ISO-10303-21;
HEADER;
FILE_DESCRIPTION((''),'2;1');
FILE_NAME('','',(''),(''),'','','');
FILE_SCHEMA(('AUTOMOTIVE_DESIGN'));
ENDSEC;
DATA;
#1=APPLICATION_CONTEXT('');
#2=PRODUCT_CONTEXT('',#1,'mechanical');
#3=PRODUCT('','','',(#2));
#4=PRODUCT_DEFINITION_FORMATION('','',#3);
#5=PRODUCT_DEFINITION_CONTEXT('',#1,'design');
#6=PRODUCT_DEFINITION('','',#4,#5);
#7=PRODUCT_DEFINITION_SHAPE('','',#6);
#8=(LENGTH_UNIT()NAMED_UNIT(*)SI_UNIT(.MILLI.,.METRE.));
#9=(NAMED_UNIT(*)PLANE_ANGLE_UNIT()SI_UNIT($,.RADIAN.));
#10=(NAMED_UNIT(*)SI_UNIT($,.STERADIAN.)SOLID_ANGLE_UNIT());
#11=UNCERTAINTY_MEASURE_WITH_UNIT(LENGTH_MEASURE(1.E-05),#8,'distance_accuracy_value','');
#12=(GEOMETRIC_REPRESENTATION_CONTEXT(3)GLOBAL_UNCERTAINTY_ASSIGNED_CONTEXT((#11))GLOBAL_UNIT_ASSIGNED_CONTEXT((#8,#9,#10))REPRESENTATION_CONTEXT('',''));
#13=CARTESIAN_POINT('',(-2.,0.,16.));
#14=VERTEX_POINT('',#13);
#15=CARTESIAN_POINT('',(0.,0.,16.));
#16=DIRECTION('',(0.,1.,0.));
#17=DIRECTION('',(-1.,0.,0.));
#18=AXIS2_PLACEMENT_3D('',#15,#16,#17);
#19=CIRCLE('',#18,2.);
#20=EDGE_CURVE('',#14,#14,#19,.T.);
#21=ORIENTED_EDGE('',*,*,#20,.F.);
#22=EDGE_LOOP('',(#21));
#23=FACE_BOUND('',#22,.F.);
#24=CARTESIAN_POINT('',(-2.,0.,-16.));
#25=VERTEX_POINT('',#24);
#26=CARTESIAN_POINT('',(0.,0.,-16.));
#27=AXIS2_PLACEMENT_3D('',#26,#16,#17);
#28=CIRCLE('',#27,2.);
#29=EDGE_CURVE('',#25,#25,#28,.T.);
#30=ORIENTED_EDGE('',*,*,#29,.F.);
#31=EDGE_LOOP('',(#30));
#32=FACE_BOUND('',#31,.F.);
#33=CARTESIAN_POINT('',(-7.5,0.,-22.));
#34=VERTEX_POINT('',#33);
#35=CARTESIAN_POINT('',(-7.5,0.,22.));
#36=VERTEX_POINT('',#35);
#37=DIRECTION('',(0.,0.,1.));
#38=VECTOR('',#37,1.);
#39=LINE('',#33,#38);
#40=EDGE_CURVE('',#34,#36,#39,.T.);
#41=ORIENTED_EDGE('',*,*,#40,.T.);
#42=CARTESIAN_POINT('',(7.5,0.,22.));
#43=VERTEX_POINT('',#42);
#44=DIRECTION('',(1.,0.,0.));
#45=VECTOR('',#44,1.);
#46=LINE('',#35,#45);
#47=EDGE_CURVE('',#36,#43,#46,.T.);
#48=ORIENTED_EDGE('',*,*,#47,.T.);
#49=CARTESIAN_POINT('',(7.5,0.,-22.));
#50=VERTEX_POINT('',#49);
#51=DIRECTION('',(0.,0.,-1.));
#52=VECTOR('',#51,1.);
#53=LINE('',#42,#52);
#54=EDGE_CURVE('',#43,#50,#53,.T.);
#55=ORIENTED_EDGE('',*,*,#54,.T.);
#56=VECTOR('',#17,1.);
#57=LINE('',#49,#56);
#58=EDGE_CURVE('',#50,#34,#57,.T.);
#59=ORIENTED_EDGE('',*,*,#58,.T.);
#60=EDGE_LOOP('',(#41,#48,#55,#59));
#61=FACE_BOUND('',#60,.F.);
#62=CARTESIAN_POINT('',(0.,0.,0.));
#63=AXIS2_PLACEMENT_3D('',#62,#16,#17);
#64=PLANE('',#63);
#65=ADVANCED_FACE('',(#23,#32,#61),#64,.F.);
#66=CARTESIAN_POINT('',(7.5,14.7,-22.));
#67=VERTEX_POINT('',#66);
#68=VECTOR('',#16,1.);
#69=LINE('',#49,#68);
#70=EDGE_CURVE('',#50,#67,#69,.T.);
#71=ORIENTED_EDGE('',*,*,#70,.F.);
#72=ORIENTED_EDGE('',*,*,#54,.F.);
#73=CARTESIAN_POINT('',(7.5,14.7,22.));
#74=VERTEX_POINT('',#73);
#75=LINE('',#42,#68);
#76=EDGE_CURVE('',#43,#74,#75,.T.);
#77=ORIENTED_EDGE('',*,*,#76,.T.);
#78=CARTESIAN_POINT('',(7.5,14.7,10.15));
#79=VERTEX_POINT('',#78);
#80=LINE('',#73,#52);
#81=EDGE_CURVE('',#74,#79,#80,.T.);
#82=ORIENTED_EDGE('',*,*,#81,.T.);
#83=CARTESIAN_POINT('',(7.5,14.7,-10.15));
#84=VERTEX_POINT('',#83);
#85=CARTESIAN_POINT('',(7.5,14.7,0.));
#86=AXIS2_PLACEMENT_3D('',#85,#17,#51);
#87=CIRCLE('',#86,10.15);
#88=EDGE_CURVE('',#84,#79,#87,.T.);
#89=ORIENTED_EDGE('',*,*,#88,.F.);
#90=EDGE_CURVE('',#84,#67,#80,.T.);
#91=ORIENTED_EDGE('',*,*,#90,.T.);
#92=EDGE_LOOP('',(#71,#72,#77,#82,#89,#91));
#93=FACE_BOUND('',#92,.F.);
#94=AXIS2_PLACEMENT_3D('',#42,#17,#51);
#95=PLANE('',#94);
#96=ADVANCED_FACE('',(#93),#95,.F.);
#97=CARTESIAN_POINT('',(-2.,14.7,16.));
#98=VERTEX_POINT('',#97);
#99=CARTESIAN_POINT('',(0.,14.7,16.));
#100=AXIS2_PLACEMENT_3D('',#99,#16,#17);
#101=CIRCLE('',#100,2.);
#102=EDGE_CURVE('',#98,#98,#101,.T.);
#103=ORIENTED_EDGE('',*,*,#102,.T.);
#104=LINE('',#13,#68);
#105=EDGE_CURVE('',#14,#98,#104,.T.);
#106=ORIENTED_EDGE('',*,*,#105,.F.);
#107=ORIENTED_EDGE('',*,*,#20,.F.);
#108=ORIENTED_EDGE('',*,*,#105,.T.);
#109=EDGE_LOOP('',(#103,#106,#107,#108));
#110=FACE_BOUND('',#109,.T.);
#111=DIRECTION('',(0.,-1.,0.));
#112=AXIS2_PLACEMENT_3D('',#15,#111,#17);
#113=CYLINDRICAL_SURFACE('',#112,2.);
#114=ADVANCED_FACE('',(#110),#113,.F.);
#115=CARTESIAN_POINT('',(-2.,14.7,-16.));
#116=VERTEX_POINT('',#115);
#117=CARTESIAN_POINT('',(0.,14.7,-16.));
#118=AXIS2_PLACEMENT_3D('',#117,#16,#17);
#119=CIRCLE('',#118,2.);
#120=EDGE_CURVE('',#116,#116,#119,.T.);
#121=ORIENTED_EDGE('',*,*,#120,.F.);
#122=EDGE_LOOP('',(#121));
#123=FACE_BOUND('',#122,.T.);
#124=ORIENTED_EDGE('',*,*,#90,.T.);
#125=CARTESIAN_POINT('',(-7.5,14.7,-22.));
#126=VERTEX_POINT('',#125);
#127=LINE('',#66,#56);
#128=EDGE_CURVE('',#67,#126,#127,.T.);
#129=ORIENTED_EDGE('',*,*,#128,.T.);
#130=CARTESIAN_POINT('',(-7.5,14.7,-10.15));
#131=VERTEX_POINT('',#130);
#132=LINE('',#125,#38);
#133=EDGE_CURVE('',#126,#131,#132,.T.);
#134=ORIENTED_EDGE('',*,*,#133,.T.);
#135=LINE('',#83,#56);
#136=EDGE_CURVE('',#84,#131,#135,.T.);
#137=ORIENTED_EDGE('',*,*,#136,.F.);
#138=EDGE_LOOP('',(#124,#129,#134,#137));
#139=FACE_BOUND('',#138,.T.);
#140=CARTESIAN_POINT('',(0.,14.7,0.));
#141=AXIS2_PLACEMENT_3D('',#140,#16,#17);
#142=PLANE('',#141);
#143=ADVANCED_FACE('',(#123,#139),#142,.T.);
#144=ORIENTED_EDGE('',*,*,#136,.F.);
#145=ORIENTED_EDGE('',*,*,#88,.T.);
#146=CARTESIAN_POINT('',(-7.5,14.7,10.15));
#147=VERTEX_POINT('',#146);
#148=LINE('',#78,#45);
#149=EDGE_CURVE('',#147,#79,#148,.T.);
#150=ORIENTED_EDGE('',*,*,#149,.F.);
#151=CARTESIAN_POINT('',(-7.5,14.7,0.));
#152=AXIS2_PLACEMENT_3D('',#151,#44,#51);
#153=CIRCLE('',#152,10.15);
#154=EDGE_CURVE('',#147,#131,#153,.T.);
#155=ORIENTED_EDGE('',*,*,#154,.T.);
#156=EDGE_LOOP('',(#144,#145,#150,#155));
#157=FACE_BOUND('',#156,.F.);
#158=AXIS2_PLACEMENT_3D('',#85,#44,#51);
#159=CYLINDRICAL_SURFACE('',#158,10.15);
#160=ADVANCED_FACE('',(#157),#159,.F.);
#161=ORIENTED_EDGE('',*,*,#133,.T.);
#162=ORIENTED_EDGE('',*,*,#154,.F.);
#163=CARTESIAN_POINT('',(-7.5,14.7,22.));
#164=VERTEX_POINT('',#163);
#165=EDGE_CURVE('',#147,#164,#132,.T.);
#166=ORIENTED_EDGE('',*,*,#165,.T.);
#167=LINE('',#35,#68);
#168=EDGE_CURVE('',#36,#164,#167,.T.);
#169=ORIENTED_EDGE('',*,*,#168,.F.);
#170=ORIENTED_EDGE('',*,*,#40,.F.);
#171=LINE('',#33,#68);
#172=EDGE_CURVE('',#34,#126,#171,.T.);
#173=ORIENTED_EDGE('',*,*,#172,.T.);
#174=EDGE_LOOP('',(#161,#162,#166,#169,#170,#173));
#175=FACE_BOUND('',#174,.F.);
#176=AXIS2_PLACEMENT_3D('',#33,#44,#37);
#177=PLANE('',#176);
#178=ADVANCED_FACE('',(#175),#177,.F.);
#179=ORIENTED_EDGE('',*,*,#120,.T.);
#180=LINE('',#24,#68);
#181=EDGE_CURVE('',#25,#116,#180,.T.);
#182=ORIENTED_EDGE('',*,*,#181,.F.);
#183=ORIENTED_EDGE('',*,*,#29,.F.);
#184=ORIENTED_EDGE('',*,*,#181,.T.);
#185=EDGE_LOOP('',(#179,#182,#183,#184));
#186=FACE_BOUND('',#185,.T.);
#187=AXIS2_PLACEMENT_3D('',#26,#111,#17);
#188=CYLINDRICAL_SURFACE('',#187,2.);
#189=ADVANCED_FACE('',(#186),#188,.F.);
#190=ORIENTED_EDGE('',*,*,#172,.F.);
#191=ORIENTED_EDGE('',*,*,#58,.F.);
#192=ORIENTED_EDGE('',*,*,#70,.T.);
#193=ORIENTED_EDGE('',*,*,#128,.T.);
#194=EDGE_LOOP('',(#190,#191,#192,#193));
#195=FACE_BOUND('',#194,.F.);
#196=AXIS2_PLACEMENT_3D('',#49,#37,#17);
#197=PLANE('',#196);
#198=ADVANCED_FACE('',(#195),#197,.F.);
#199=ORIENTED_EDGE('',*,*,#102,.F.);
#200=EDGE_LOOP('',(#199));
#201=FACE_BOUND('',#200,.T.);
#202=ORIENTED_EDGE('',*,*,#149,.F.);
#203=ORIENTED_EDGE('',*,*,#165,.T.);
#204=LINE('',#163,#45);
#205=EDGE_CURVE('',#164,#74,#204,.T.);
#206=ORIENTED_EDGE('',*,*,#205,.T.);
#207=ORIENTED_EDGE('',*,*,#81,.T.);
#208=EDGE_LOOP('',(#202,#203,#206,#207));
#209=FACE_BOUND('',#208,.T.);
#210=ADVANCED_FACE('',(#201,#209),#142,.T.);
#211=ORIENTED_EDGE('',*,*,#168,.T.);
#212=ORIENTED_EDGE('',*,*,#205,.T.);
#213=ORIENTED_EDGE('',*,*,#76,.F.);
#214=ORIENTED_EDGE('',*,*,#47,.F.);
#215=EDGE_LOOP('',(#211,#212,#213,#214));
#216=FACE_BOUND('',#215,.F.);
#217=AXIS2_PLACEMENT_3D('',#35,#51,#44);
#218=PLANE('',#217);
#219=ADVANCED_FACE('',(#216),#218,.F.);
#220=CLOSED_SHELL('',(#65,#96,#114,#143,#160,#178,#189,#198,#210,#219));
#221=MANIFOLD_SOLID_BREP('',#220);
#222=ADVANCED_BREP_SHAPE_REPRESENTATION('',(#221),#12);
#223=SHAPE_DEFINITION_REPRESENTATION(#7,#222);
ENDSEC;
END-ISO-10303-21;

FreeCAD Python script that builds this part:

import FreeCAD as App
import Part
import Sketcher
Q = App.Units.Quantity

doc = App.newDocument("Part")
params = doc.addObject("Spreadsheet::Sheet", "Params")
for row, (alias, value) in enumerate([
    ("sketch1_diameter", "4 mm"),
    ("sketch1_width", "15 mm"),
    ("sketch1_height", "44 mm"),
    ("pad1_length", "14.7 mm"),
    ("sketch2_diameter", "20.3 mm"),
], start=1):
    params.set(f"A{row}", alias)
    params.set(f"B{row}", "=" + value)
    params.setAlias(f"B{row}", alias)

body = doc.addObject("PartDesign::Body", "Body")

sketch1 = doc.addObject("Sketcher::SketchObject", "Sketch")
body.addObject(sketch1)
sketch1.AttachmentSupport = (doc.XZ_Plane, [""])
sketch1.MapMode = "FlatFace"
sketch1.addGeometry([
    Part.LineSegment(App.Vector(-7.5, -22, 0), App.Vector(-7.5, 22, 0)),
    Part.LineSegment(App.Vector(-7.5, 22, 0), App.Vector(7.5, 22, 0)),
    Part.LineSegment(App.Vector(7.5, 22, 0), App.Vector(7.5, -22, 0)),
    Part.LineSegment(App.Vector(7.5, -22, 0), App.Vector(-7.5, -22, 0)),
    Part.Circle(App.Vector(0, -16, 0), App.Vector(0, 0, 1), 2),
    Part.Circle(App.Vector(0, 16, 0), App.Vector(0, 0, 1), 2),
], False)
sketch1.addConstraint([
    Sketcher.Constraint("Coincident", 0, 2, 1, 1),
    Sketcher.Constraint("Coincident", 1, 2, 2, 1),
    Sketcher.Constraint("Coincident", 2, 2, 3, 1),
    Sketcher.Constraint("Coincident", 3, 2, 0, 1),
    Sketcher.Constraint("Vertical", 0),
    Sketcher.Constraint("Horizontal", 1),
    Sketcher.Constraint("Vertical", 2),
    Sketcher.Constraint("Horizontal", 3),
    Sketcher.Constraint("Equal", 4, 5),
    Sketcher.Constraint("Symmetric", 4, 3, 5, 3, -1, 1),
    Sketcher.Constraint("Symmetric", 0, 2, 2, 2, -1, 1),
    Sketcher.Constraint("PointOnObject", 4, 3, -2),
    Sketcher.Constraint("Diameter", 4, Q("4 mm")),
    Sketcher.Constraint("DistanceX", 1, 1, 1, 2, Q("15 mm")),
    Sketcher.Constraint("DistanceY", 0, 1, 0, 2, Q("44 mm")),
    Sketcher.Constraint("DistanceY", 4, 3, -1, 1, Q("16 mm")),
])
sketch1.setExpression("Constraints[12]", "Params.sketch1_diameter")
sketch1.setExpression("Constraints[13]", "Params.sketch1_width")
sketch1.setExpression("Constraints[14]", "Params.sketch1_height")
pad1 = doc.addObject("PartDesign::Pad", "Pad")
body.addObject(pad1)
pad1.Profile = sketch1
pad1.setExpression("Length", "Params.pad1_length")
pad1.Reversed = True

sketch2 = doc.addObject("Sketcher::SketchObject", "Sketch001")
body.addObject(sketch2)
sketch2.AttachmentSupport = (doc.YZ_Plane, [""])
sketch2.MapMode = "FlatFace"
sketch2.AttachmentOffset = App.Placement(App.Vector(0, 0, 7.5), App.Rotation())
sketch2.addGeometry(Part.Circle(App.Vector(15, 0, 0), App.Vector(0, 0, 1), 10), False)
sketch2.addConstraint([
    Sketcher.Constraint("PointOnObject", 0, 3, -1),
    Sketcher.Constraint("Diameter", 0, Q("20.3 mm")),
    Sketcher.Constraint("DistanceX", -1, 1, 0, 3, Q("14.7 mm")),
])
sketch2.setExpression("Constraints[1]", "Params.sketch2_diameter")
pocket1 = doc.addObject("PartDesign::Pocket", "Pocket")
body.addObject(pocket1)
pocket1.Profile = sketch2
pocket1.Type = "ThroughAll"

doc.recompute()
